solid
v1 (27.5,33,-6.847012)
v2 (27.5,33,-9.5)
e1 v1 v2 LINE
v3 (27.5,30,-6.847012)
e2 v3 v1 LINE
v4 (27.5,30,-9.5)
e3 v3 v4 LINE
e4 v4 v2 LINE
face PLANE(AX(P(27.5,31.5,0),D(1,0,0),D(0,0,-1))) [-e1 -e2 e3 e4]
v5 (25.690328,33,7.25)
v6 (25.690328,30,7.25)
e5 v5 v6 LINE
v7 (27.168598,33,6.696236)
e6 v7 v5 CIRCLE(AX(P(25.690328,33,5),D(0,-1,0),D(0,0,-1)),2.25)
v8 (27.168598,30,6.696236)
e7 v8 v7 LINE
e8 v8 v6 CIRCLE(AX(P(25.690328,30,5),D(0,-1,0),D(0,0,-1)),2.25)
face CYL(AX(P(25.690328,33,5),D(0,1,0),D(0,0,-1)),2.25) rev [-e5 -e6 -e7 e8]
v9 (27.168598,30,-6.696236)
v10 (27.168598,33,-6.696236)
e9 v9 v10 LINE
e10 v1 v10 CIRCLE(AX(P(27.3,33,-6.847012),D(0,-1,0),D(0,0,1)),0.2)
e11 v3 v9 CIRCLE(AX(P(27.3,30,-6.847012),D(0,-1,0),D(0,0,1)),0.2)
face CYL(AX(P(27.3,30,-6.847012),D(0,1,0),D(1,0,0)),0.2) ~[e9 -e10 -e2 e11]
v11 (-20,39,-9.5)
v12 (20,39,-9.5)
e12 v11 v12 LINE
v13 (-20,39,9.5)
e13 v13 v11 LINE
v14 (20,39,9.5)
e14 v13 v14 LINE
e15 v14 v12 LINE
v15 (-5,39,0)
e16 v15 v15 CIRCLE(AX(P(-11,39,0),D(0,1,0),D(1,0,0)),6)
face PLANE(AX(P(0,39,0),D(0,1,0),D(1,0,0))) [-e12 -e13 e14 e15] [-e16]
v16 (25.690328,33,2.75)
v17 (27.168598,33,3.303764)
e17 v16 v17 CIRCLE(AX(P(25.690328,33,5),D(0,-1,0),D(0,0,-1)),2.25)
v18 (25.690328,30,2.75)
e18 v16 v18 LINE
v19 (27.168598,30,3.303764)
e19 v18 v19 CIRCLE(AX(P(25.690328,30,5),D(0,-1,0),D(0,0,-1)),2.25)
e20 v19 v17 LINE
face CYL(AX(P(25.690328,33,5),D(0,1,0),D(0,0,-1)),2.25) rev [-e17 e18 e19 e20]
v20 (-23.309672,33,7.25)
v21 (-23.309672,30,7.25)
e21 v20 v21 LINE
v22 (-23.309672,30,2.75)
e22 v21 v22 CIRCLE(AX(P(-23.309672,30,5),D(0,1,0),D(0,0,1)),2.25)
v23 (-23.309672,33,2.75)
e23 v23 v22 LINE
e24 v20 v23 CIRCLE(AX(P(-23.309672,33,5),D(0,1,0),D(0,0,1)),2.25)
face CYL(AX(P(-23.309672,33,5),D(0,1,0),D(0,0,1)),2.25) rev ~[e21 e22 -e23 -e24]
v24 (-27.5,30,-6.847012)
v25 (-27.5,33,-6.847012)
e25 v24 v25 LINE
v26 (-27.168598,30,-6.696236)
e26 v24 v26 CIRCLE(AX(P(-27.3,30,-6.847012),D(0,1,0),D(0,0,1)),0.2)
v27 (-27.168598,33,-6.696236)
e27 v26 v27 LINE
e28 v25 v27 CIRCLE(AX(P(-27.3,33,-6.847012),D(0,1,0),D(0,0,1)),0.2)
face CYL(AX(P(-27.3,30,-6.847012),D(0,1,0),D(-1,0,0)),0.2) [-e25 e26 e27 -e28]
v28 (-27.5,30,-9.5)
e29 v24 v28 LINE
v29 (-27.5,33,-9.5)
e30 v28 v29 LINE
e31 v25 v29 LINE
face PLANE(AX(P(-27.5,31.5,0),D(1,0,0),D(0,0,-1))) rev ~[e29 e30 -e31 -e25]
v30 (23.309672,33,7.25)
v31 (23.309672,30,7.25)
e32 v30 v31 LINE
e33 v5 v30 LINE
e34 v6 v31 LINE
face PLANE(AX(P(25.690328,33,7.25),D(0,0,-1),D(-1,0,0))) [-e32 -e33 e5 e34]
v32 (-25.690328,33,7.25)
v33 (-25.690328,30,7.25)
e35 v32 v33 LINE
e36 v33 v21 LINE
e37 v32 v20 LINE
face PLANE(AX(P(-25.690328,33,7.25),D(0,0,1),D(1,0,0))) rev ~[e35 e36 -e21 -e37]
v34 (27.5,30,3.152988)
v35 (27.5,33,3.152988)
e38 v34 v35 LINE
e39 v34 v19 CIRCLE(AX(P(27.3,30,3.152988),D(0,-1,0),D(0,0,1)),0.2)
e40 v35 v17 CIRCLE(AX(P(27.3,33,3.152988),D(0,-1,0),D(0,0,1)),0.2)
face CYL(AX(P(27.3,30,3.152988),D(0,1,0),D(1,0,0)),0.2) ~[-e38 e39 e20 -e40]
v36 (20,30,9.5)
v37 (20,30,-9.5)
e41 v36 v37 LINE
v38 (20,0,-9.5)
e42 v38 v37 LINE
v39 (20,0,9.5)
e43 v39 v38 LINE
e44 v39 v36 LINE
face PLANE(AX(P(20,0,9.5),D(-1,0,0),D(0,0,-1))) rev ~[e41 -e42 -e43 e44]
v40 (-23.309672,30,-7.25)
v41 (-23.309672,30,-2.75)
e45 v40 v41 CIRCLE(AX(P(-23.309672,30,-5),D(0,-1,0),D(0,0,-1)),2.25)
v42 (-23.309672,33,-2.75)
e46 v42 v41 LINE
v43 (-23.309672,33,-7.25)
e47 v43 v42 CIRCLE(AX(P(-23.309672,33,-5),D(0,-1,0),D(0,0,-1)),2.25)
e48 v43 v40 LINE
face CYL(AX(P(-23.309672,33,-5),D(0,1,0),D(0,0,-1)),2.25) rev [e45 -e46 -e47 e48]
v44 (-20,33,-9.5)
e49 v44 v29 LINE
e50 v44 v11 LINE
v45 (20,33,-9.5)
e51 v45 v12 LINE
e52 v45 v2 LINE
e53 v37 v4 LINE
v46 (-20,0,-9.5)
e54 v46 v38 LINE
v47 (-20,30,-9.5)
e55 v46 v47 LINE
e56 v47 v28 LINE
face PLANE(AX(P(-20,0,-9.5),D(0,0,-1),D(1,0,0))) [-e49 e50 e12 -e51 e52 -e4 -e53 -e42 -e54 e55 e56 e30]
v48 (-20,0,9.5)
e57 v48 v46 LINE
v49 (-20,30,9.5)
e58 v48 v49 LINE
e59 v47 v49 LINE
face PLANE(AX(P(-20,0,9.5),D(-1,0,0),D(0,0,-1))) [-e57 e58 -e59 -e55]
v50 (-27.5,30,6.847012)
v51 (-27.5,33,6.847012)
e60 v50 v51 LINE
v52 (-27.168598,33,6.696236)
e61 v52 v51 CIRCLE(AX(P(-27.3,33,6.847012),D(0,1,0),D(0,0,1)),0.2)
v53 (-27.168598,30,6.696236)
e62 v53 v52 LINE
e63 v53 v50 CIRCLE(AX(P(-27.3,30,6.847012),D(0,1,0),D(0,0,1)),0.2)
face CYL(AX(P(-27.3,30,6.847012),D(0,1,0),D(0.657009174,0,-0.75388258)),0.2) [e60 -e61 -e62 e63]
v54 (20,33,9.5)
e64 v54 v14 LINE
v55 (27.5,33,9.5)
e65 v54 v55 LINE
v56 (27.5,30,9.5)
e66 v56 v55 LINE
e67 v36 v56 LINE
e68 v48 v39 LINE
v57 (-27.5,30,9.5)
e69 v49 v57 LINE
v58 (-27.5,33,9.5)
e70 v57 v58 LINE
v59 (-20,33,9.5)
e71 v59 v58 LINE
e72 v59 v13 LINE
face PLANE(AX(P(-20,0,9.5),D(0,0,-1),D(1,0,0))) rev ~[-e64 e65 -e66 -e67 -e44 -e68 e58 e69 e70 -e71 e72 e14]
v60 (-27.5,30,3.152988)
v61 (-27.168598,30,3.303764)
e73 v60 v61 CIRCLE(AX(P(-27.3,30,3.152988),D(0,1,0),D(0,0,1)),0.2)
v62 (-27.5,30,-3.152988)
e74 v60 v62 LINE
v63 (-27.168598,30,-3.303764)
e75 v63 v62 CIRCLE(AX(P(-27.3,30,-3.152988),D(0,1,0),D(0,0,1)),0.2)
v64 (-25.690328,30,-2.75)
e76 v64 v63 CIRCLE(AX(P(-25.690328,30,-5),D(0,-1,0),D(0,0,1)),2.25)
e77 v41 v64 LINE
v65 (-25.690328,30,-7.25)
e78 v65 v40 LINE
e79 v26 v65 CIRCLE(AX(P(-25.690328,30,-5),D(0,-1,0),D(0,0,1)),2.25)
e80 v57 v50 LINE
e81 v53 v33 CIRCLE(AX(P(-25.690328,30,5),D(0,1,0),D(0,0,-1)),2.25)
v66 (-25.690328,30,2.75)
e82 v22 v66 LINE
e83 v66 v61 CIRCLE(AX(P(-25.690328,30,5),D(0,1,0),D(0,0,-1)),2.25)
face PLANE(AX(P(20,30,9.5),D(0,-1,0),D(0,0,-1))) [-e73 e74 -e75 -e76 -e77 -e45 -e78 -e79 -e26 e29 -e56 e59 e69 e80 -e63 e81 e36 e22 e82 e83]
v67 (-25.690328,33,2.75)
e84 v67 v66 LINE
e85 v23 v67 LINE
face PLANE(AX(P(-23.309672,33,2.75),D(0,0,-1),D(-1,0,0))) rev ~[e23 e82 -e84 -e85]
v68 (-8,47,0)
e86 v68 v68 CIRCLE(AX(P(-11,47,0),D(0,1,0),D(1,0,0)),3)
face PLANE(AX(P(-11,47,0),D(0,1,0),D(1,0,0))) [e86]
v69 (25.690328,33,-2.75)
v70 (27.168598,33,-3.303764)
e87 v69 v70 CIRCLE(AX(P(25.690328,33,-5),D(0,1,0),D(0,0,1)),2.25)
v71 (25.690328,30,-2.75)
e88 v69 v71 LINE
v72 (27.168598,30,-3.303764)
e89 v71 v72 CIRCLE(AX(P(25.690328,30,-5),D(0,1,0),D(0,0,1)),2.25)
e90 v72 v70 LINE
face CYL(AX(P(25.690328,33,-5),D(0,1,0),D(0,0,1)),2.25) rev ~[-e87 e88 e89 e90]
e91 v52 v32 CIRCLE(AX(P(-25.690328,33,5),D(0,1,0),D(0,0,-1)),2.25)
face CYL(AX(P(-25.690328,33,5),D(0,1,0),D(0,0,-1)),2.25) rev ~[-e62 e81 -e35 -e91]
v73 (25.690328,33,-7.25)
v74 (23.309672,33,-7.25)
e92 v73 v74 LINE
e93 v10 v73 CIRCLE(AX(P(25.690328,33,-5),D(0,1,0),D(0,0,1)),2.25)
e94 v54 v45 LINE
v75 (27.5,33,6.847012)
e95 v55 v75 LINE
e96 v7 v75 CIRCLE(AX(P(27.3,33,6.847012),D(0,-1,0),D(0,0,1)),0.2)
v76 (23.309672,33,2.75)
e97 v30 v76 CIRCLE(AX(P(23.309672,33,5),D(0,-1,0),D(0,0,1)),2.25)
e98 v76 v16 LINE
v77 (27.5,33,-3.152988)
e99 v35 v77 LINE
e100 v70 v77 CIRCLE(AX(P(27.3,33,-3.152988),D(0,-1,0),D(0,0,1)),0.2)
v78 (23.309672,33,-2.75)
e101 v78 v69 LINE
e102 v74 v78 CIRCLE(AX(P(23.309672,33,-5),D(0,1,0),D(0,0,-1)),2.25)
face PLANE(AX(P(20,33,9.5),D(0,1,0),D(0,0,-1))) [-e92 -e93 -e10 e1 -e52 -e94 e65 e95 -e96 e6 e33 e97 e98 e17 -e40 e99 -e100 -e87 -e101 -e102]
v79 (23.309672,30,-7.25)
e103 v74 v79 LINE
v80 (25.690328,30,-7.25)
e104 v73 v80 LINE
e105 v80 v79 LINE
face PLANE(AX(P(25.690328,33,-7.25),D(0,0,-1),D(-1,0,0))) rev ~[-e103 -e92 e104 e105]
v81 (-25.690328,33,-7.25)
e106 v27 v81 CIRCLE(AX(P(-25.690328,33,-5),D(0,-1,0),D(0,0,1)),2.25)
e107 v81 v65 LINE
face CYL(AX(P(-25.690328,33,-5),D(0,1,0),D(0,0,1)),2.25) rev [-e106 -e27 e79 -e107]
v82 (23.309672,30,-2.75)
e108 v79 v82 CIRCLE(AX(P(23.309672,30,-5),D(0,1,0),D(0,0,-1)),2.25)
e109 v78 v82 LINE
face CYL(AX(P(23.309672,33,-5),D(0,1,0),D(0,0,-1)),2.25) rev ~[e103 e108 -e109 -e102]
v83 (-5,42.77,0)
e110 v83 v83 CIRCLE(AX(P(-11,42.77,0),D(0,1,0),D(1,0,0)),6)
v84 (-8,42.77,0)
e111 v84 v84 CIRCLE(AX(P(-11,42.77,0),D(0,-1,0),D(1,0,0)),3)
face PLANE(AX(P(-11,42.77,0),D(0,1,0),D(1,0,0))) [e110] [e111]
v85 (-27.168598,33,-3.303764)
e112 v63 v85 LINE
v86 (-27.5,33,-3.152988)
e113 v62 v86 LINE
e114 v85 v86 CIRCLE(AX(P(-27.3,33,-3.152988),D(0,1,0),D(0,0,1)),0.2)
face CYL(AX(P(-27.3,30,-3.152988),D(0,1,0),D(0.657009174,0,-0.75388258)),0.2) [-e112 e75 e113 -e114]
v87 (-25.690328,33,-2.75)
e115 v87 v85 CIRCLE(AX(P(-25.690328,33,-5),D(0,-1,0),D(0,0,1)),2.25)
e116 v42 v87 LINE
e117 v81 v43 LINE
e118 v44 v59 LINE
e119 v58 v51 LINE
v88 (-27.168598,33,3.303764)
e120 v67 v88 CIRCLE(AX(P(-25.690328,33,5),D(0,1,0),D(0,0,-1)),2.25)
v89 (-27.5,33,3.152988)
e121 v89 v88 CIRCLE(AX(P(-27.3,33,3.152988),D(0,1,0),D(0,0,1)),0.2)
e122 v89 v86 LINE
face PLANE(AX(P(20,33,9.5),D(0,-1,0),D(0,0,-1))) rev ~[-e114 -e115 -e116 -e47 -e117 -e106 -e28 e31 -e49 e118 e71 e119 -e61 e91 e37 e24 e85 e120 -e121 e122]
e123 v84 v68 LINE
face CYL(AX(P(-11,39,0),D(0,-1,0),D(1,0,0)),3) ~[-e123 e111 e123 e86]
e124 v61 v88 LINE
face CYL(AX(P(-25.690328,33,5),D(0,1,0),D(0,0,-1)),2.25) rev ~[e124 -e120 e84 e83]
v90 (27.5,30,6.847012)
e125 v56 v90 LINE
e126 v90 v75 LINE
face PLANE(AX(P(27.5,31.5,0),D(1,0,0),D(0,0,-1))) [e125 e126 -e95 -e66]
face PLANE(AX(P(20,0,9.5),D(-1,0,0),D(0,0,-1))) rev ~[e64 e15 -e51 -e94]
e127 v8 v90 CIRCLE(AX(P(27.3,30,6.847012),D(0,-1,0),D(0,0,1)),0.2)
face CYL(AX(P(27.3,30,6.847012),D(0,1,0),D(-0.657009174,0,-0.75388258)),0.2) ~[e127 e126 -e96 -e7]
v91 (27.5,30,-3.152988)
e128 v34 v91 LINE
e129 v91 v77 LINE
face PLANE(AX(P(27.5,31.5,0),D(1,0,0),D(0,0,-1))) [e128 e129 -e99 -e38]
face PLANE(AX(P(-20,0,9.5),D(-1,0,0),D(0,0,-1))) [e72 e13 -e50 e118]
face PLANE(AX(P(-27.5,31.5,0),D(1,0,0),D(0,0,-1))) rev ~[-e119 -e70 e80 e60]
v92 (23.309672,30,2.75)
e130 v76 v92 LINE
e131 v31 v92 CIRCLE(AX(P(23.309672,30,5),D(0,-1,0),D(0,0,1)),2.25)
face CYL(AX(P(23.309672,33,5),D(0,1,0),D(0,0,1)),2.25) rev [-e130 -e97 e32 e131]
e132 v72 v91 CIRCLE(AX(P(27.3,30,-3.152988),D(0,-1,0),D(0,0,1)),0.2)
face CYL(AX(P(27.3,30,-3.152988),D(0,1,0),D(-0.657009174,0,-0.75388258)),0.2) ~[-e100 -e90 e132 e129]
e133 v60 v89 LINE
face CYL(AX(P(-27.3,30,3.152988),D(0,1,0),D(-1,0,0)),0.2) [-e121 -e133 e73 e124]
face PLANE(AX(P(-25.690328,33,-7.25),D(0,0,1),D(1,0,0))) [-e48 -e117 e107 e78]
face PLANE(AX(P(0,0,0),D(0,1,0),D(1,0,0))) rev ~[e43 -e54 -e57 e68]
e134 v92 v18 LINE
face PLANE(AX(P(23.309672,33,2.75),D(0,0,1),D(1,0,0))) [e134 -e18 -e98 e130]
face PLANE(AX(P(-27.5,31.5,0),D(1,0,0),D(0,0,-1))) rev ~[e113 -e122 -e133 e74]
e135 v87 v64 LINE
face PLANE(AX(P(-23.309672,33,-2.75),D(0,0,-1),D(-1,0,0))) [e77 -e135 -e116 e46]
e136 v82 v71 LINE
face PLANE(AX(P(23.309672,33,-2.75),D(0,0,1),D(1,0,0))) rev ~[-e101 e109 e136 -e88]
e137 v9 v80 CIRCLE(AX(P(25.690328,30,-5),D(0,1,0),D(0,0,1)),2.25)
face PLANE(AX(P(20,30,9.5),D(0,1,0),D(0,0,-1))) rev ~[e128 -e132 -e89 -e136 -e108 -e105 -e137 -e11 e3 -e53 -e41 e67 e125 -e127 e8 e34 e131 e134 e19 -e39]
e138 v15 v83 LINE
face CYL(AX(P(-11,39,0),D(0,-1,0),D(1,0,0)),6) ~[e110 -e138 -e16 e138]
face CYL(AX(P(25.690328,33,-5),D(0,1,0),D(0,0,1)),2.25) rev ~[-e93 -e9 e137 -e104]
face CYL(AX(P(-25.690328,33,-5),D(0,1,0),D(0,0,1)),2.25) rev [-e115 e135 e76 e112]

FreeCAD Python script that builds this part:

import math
import FreeCAD as App
import Part
import Sketcher


def edges_at(feature, points):
    """Names of the edges that pass closest to the given points."""
    edges = feature.Shape.Edges
    near = lambda p: min(range(len(edges)), key=lambda i: edges[i].distToShape(Part.Vertex(*p))[0])
    return sorted({f"Edge{near(p) + 1}" for p in points})

doc = App.newDocument("Part")
params = doc.addObject("Spreadsheet::Sheet", "Params")
for row, (alias, value) in enumerate([
    ("sketch1_width", "40 mm"),
    ("sketch1_height", "19 mm"),
    ("pad1_length", "39 mm"),
    ("sketch2_width", "3 mm"),
    ("sketch2_height", "19 mm"),
    ("pad2_length", "7.5 mm"),
    ("pad2_length2", "47.5 mm"),
    ("sketch3_radius", "2.25 mm"),
    ("pocket1_length", "3 mm"),
    ("fillet_radius", "0.2 mm"),
    ("sketch4_diameter", "6 mm"),
    ("pad3_length", "8 mm"),
    ("sketch5_diameter", "12 mm"),
    ("pad4_length", "3.77 mm"),
], start=1):
    params.set(f"A{row}", alias)
    params.set(f"B{row}", "=" + value)
    params.setAlias(f"B{row}", alias)

body = doc.addObject("PartDesign::Body", "Body")

sketch1 = doc.addObject("Sketcher::SketchObject", "Sketch")
body.addObject(sketch1)
sketch1.AttachmentSupport = (doc.XZ_Plane, [""])
sketch1.MapMode = "FlatFace"
sketch1.addGeometry(Part.LineSegment(App.Vector(-20, -10, 0), App.Vector(-20, 10, 0)), False)
sketch1.addGeometry(Part.LineSegment(App.Vector(-20, 10, 0), App.Vector(20, 10, 0)), False)
sketch1.addGeometry(Part.LineSegment(App.Vector(20, 10, 0), App.Vector(20, -10, 0)), False)
sketch1.addGeometry(Part.LineSegment(App.Vector(20, -10, 0), App.Vector(-20, -10, 0)), False)
sketch1.addConstraint(Sketcher.Constraint("Coincident", 0, 2, 1, 1))
sketch1.addConstraint(Sketcher.Constraint("Coincident", 1, 2, 2, 1))
sketch1.addConstraint(Sketcher.Constraint("Coincident", 2, 2, 3, 1))
sketch1.addConstraint(Sketcher.Constraint("Coincident", 3, 2, 0, 1))
sketch1.addConstraint(Sketcher.Constraint("Vertical", 0))
sketch1.addConstraint(Sketcher.Constraint("Horizontal", 1))
sketch1.addConstraint(Sketcher.Constraint("Vertical", 2))
sketch1.addConstraint(Sketcher.Constraint("Horizontal", 3))
sketch1.addConstraint(Sketcher.Constraint("Symmetric", 0, 2, 2, 2, -1, 1))
sketch1.addConstraint(Sketcher.Constraint("DistanceX", 1, 1, 1, 2, 40.0))
sketch1.addConstraint(Sketcher.Constraint("DistanceY", 0, 1, 0, 2, 19.0))
sketch1.setExpression("Constraints[9]", "Params.sketch1_width")
sketch1.setExpression("Constraints[10]", "Params.sketch1_height")
pad1 = doc.addObject("PartDesign::Pad", "Pad")
body.addObject(pad1)
pad1.Profile = sketch1
pad1.setExpression("Length", "Params.pad1_length")
pad1.Reversed = True

sketch2 = doc.addObject("Sketcher::SketchObject", "Sketch001")
body.addObject(sketch2)
sketch2.AttachmentSupport = (doc.YZ_Plane, [""])
sketch2.MapMode = "FlatFace"
sketch2.AttachmentOffset = App.Placement(App.Vector(0, 0, 20), App.Rotation())
sketch2.addGeometry(Part.LineSegment(App.Vector(33, 9.5, 0), App.Vector(30, 9.5, 0)), False)
sketch2.addGeometry(Part.LineSegment(App.Vector(30, 9.5, 0), App.Vector(30, -9.5, 0)), False)
sketch2.addGeometry(Part.LineSegment(App.Vector(30, -9.5, 0), App.Vector(33, -9.5, 0)), False)
sketch2.addGeometry(Part.LineSegment(App.Vector(33, -9.5, 0), App.Vector(33, 9.5, 0)), False)
sketch2.addConstraint(Sketcher.Constraint("Coincident", 0, 2, 1, 1))
sketch2.addConstraint(Sketcher.Constraint("Coincident", 1, 2, 2, 1))
sketch2.addConstraint(Sketcher.Constraint("Coincident", 2, 2, 3, 1))
sketch2.addConstraint(Sketcher.Constraint("Coincident", 3, 2, 0, 1))
sketch2.addConstraint(Sketcher.Constraint("Horizontal", 0))
sketch2.addConstraint(Sketcher.Constraint("Vertical", 1))
sketch2.addConstraint(Sketcher.Constraint("Horizontal", 2))
sketch2.addConstraint(Sketcher.Constraint("Vertical", 3))
sketch2.addConstraint(Sketcher.Constraint("DistanceX", 0, 2, 0, 1, 3.0))
sketch2.addConstraint(Sketcher.Constraint("DistanceY", 1, 2, 1, 1, 19.0))
sketch2.addConstraint(Sketcher.Constraint("DistanceX", -1, 1, 0, 2, 30.0))
sketch2.addConstraint(Sketcher.Constraint("DistanceY", -1, 1, 0, 2, 9.5))
sketch2.setExpression("Constraints[8]", "Params.sketch2_width")
sketch2.setExpression("Constraints[9]", "Params.sketch2_height")
pad2 = doc.addObject("PartDesign::Pad", "Pad001")
body.addObject(pad2)
pad2.Profile = sketch2
pad2.Type = "TwoLengths"
pad2.setExpression("Length", "Params.pad2_length")
pad2.setExpression("Length2", "Params.pad2_length2")

sketch3 = doc.addObject("Sketcher::SketchObject", "Sketch002")
body.addObject(sketch3)
sketch3.AttachmentSupport = (doc.XZ_Plane, [""])
sketch3.MapMode = "FlatFace"
sketch3.AttachmentOffset = App.Placement(App.Vector(0, 0, -33), App.Rotation())
sketch3.addGeometry(Part.LineSegment(App.Vector(-25.7, -2.8, 0), App.Vector(-23.3, -2.8, 0)), False)
sketch3.addGeometry(Part.ArcOfCircle(Part.Circle(App.Vector(-23.3, -5, 0), App.Vector(0, 0, 1), 2.2), math.radians(-90), math.radians(90)), False)
sketch3.addGeometry(Part.LineSegment(App.Vector(-23.3, -7.2, 0), App.Vector(-25.7, -7.2, 0)), False)
sketch3.addGeometry(Part.ArcOfCircle(Part.Circle(App.Vector(-25.7, -5, 0), App.Vector(0, 0, 1), 2.2), math.radians(90), math.radians(270)), False)
sketch3.addGeometry(Part.LineSegment(App.Vector(-23.3, 2.8, 0), App.Vector(-25.7, 2.8, 0)), False)
sketch3.addGeometry(Part.ArcOfCircle(Part.Circle(App.Vector(-25.7, 5, 0), App.Vector(0, 0, 1), 2.2), math.radians(90), math.radians(270)), False)
sketch3.addGeometry(Part.LineSegment(App.Vector(-25.7, 7.2, 0), App.Vector(-23.3, 7.2, 0)), False)
sketch3.addGeometry(Part.ArcOfCircle(Part.Circle(App.Vector(-23.3, 5, 0), App.Vector(0, 0, 1), 2.2), math.radians(-90), math.radians(90)), False)
sketch3.addGeometry(Part.LineSegment(App.Vector(25.7, 2.8, 0), App.Vector(23.3, 2.8, 0)), False)
sketch3.addGeometry(Part.ArcOfCircle(Part.Circle(App.Vector(23.3, 5, 0), App.Vector(0, 0, 1), 2.2), math.radians(90), math.radians(270)), False)
sketch3.addGeometry(Part.LineSegment(App.Vector(23.3, 7.2, 0), App.Vector(25.7, 7.2, 0)), False)
sketch3.addGeometry(Part.ArcOfCircle(Part.Circle(App.Vector(25.7, 5, 0), App.Vector(0, 0, 1), 2.2), math.radians(-90), math.radians(90)), False)
sketch3.addGeometry(Part.LineSegment(App.Vector(23.3, -2.8, 0), App.Vector(25.7, -2.8, 0)), False)
sketch3.addGeometry(Part.ArcOfCircle(Part.Circle(App.Vector(25.7, -5, 0), App.Vector(0, 0, 1), 2.2), math.radians(-90), math.radians(90)), False)
sketch3.addGeometry(Part.LineSegment(App.Vector(25.7, -7.2, 0), App.Vector(23.3, -7.2, 0)), False)
sketch3.addGeometry(Part.ArcOfCircle(Part.Circle(App.Vector(23.3, -5, 0), App.Vector(0, 0, 1), 2.2), math.radians(90), math.radians(270)), False)
sketch3.addConstraint(Sketcher.Constraint("Tangent", 0, 2, 1, 2))
sketch3.addConstraint(Sketcher.Constraint("Tangent", 1, 1, 2, 1))
sketch3.addConstraint(Sketcher.Constraint("Tangent", 2, 2, 3, 2))
sketch3.addConstraint(Sketcher.Constraint("Tangent", 3, 1, 0, 1))
sketch3.addConstraint(Sketcher.Constraint("Tangent", 4, 2, 5, 2))
sketch3.addConstraint(Sketcher.Constraint("Tangent", 5, 1, 6, 1))
sketch3.addConstraint(Sketcher.Constraint("Tangent", 6, 2, 7, 2))
sketch3.addConstraint(Sketcher.Constraint("Tangent", 7, 1, 4, 1))
sketch3.addConstraint(Sketcher.Constraint("Tangent", 8, 2, 9, 2))
sketch3.addConstraint(Sketcher.Constraint("Tangent", 9, 1, 10, 1))
sketch3.addConstraint(Sketcher.Constraint("Tangent", 10, 2, 11, 2))
sketch3.addConstraint(Sketcher.Constraint("Tangent", 11, 1, 8, 1))
sketch3.addConstraint(Sketcher.Constraint("Tangent", 12, 2, 13, 2))
sketch3.addConstraint(Sketcher.Constraint("Tangent", 13, 1, 14, 1))
sketch3.addConstraint(Sketcher.Constraint("Tangent", 14, 2, 15, 2))
sketch3.addConstraint(Sketcher.Constraint("Tangent", 15, 1, 12, 1))
sketch3.addConstraint(Sketcher.Constraint("Horizontal", 0))
sketch3.addConstraint(Sketcher.Constraint("Horizontal", 2))
sketch3.addConstraint(Sketcher.Constraint("Horizontal", 4))
sketch3.addConstraint(Sketcher.Constraint("Horizontal", 6))
sketch3.addConstraint(Sketcher.Constraint("Horizontal", 8))
sketch3.addConstraint(Sketcher.Constraint("Horizontal", 10))
sketch3.addConstraint(Sketcher.Constraint("Horizontal", 12))
sketch3.addConstraint(Sketcher.Constraint("Horizontal", 14))
sketch3.addConstraint(Sketcher.Constraint("Equal", 3, 5))
sketch3.addConstraint(Sketcher.Constraint("Equal", 7, 9))
sketch3.addConstraint(Sketcher.Constraint("Equal", 11, 13))
sketch3.addConstraint(Sketcher.Constraint("Symmetric", 1, 3, 9, 3, -1, 1))
sketch3.addConstraint(Sketcher.Constraint("Symmetric", 5, 3, 13, 3, -1, 1))
sketch3.addConstraint(Sketcher.Constraint("Symmetric", 7, 3, 9, 3, -2))
sketch3.addConstraint(Sketcher.Constraint("Vertical", 3, 3, 5, 3))
sketch3.addConstraint(Sketcher.Constraint("Vertical", 11, 3, 13, 3))
sketch3.addConstraint(Sketcher.Constraint("Vertical", 9, 3, 15, 3))
sketch3.addConstraint(Sketcher.Constraint("Radius", 1, 2.25))
sketch3.addConstraint(Sketcher.Constraint("DistanceY", 1, 3, -1, 1, 5.0))
sketch3.addConstraint(Sketcher.Constraint("DistanceX", 5, 3, 9, 3, 49.0))
sketch3.addConstraint(Sketcher.Constraint("DistanceX", 0, 1, 0, 2, 2.380655))
sketch3.setExpression("Constraints[33]", "Params.sketch3_radius")
pocket1 = doc.addObject("PartDesign::Pocket", "Pocket")
body.addObject(pocket1)
pocket1.Profile = sketch3
pocket1.setExpression("Length", "Params.pocket1_length")
pocket1.Reversed = True
doc.recompute()

fillet = doc.addObject("PartDesign::Fillet", "Fillet")
body.addObject(fillet)
fillet.Base = (pocket1, edges_at(pocket1, [
    (27.5, 31.5, 6.337),
    (27.5, 31.5, 3.663),
    (27.5, 31.5, -3.663),
    (27.5, 31.5, -6.337),
    (-27.5, 31.5, 3.663),
    (-27.5, 31.5, 6.337),
    (-27.5, 31.5, -6.337),
    (-27.5, 31.5, -3.663),
]))
fillet.setExpression("Radius", "Params.fillet_radius")

sketch4 = doc.addObject("Sketcher::SketchObject", "Sketch003")
body.addObject(sketch4)
sketch4.AttachmentSupport = (doc.XZ_Plane, [""])
sketch4.MapMode = "FlatFace"
sketch4.AttachmentOffset = App.Placement(App.Vector(0, 0, -39), App.Rotation())
sketch4.addGeometry(Part.Circle(App.Vector(-11, 0, 0), App.Vector(0, 0, 1), 3), False)
sketch4.addConstraint(Sketcher.Constraint("PointOnObject", 0, 3, -1))
sketch4.addConstraint(Sketcher.Constraint("Diameter", 0, 6.0))
sketch4.addConstraint(Sketcher.Constraint("DistanceX", 0, 3, -1, 1, 11.0))
sketch4.setExpression("Constraints[1]", "Params.sketch4_diameter")
pad3 = doc.addObject("PartDesign::Pad", "Pad002")
body.addObject(pad3)
pad3.Profile = sketch4
pad3.setExpression("Length", "Params.pad3_length")
pad3.Reversed = True

sketch5 = doc.addObject("Sketcher::SketchObject", "Sketch004")
body.addObject(sketch5)
sketch5.AttachmentSupport = (doc.XZ_Plane, [""])
sketch5.MapMode = "FlatFace"
sketch5.AttachmentOffset = App.Placement(App.Vector(0, 0, -39), App.Rotation())
sketch5.addGeometry(Part.Circle(App.Vector(-11, 0, 0), App.Vector(0, 0, 1), 6), False)
sketch5.addConstraint(Sketcher.Constraint("PointOnObject", 0, 3, -1))
sketch5.addConstraint(Sketcher.Constraint("Diameter", 0, 12.0))
sketch5.addConstraint(Sketcher.Constraint("DistanceX", 0, 3, -1, 1, 11.0))
sketch5.setExpression("Constraints[1]", "Params.sketch5_diameter")
pad4 = doc.addObject("PartDesign::Pad", "Pad003")
body.addObject(pad4)
pad4.Profile = sketch5
pad4.setExpression("Length", "Params.pad4_length")
pad4.Reversed = True

doc.recompute()
